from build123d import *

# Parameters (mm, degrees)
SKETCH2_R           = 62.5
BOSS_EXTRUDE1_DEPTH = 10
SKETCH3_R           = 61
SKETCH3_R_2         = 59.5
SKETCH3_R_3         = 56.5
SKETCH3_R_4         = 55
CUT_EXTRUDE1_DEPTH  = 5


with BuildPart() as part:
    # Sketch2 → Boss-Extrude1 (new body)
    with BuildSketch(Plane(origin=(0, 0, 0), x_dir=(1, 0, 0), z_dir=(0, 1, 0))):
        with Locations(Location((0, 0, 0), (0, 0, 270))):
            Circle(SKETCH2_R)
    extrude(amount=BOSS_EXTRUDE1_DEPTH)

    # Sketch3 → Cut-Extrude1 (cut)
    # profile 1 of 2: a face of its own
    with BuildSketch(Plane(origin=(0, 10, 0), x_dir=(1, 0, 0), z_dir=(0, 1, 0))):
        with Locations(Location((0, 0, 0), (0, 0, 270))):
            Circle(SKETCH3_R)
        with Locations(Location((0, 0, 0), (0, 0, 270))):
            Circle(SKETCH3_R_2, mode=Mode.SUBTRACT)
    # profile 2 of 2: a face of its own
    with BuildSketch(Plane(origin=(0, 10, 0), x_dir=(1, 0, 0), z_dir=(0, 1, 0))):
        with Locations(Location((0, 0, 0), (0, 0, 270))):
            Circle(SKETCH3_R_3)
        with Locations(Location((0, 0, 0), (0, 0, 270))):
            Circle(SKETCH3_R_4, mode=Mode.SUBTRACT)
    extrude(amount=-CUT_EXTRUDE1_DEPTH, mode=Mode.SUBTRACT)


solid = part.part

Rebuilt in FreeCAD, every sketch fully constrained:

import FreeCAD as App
import Part
import Sketcher

V = App.Vector

doc = App.newDocument("Part")
body = doc.addObject("PartDesign::Body", "Body")

# Sketch on XZ plane
sketch1 = body.newObject("Sketcher::SketchObject", "Sketch")
sketch1.AttachmentSupport = (doc.getObject("XZ_Plane"), [""])
sketch1.MapMode = "FlatFace"
sketch1.addGeometry(Part.Circle(V(0, 0, 0), V(0, 0, 1), 62.5), False)
sketch1.addConstraint([
    Sketcher.Constraint("Coincident", 0, 3, -1, 1),
    Sketcher.Constraint("Diameter", 0, 125.0),
])
pad1 = body.newObject("PartDesign::Pad", "Pad")
pad1.Profile = sketch1
pad1.Length = 10
pad1.Reversed = True

# Sketch on XZ plane
sketch2 = body.newObject("Sketcher::SketchObject", "Sketch001")
sketch2.AttachmentSupport = (doc.getObject("XZ_Plane"), [""])
sketch2.MapMode = "FlatFace"
sketch2.AttachmentOffset = App.Placement(V(0, 0, -10), App.Rotation())
sketch2.addGeometry([
    Part.Circle(V(0, 0, 0), V(0, 0, 1), 61),
    Part.Circle(V(0, 0, 0), V(0, 0, 1), 59.5),
    Part.Circle(V(0, 0, 0), V(0, 0, 1), 56.5),
    Part.Circle(V(0, 0, 0), V(0, 0, 1), 55),
], False)
sketch2.addConstraint([
    Sketcher.Constraint("Coincident", 0, 3, -1, 1),
    Sketcher.Constraint("Coincident", 1, 3, -1, 1),
    Sketcher.Constraint("Coincident", 2, 3, -1, 1),
    Sketcher.Constraint("Coincident", 3, 3, -1, 1),
    Sketcher.Constraint("Diameter", 0, 122.0),
    Sketcher.Constraint("Diameter", 1, 119.0),
    Sketcher.Constraint("Diameter", 2, 113.0),
    Sketcher.Constraint("Diameter", 3, 110.0),
])
pocket1 = body.newObject("PartDesign::Pocket", "Pocket")
pocket1.Profile = sketch2
pocket1.Length = 5
pocket1.Reversed = True

doc.recompute()
